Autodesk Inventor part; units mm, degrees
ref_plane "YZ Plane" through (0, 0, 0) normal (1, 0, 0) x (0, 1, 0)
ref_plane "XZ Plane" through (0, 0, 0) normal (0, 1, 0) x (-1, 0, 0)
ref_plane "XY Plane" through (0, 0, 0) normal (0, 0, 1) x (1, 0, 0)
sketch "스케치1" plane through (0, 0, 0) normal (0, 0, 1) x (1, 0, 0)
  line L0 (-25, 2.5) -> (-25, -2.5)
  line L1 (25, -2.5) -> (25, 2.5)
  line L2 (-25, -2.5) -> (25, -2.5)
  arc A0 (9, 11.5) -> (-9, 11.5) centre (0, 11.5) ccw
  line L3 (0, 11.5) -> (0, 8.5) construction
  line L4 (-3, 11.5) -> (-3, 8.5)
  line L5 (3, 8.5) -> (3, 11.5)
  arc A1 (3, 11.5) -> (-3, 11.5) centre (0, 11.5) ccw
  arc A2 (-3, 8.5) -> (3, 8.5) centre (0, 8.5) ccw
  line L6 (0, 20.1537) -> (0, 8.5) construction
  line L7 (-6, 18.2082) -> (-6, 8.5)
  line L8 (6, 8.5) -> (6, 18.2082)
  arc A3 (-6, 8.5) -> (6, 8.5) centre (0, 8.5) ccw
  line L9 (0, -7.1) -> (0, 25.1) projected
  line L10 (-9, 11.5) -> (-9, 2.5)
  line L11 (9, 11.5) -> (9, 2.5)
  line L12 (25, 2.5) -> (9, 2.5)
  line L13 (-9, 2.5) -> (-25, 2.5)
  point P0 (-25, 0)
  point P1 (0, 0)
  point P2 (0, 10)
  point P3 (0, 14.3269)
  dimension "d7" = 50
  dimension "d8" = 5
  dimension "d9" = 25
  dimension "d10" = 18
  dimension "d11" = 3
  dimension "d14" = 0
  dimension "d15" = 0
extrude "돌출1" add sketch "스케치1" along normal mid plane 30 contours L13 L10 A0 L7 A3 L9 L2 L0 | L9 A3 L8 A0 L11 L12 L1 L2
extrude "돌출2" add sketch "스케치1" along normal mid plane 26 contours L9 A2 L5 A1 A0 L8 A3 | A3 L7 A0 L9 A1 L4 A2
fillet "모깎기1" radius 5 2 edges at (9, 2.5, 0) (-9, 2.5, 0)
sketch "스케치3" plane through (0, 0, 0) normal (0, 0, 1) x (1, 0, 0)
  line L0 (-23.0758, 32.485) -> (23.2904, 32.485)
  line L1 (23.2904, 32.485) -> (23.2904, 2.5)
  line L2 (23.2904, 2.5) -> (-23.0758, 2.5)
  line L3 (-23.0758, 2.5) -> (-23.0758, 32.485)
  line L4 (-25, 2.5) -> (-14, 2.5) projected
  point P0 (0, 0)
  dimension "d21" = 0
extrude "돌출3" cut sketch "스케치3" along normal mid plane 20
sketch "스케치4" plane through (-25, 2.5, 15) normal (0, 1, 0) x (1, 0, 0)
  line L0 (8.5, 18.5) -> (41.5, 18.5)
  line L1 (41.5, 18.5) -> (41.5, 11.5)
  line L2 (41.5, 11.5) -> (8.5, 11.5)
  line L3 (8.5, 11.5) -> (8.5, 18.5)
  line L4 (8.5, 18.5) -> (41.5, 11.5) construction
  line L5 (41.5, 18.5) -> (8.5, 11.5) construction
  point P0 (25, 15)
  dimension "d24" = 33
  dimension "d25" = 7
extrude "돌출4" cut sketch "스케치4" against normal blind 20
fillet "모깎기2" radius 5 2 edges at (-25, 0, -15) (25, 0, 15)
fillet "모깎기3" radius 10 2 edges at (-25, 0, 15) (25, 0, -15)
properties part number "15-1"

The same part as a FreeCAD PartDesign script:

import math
import FreeCAD as App
import Part
import Sketcher
Q = App.Units.Quantity


def edges_at(feature, points):
    """Names of the edges that pass closest to the given points."""
    edges = feature.Shape.Edges
    near = lambda p: min(range(len(edges)), key=lambda i: edges[i].distToShape(Part.Vertex(*p))[0])
    return sorted({f"Edge{near(p) + 1}" for p in points})

doc = App.newDocument("Part")
body = doc.addObject("PartDesign::Body", "Body")

# Sketch on XY plane
sketch1 = doc.addObject("Sketcher::SketchObject", "Sketch")
body.addObject(sketch1)
sketch1.AttachmentSupport = (doc.XY_Plane, [""])
sketch1.MapMode = "FlatFace"
sketch1.addGeometry([
    Part.LineSegment(App.Vector(-9, 2.5, 0), App.Vector(-25, 2.5, 0)),  # 0
    Part.LineSegment(App.Vector(-25, 2.5, 0), App.Vector(-25, -2.5, 0)),  # 1
    Part.LineSegment(App.Vector(-25, -2.5, 0), App.Vector(25, -2.5, 0)),  # 2
    Part.LineSegment(App.Vector(25, -2.5, 0), App.Vector(25, 2.5, 0)),  # 3
    Part.LineSegment(App.Vector(25, 2.5, 0), App.Vector(9, 2.5, 0)),  # 4
    Part.LineSegment(App.Vector(9, 2.5, 0), App.Vector(9, 11.5, 0)),  # 5
    Part.ArcOfCircle(Part.Circle(App.Vector(0, 11.5, 0), App.Vector(0, 0, 1), 9), math.radians(0), math.radians(48.189668)),  # 6
    Part.LineSegment(App.Vector(6, 18.2082, 0), App.Vector(6, 8.5, 0)),  # 7
    Part.ArcOfCircle(Part.Circle(App.Vector(0, 8.5, 0), App.Vector(0, 0, 1), 6), math.radians(180), math.radians(360)),  # 8
    Part.LineSegment(App.Vector(-6, 8.5, 0), App.Vector(-6, 18.2082, 0)),  # 9
    Part.ArcOfCircle(Part.Circle(App.Vector(0, 11.5, 0), App.Vector(0, 0, 1), 9), math.radians(131.810332), math.radians(180)),  # 10
    Part.LineSegment(App.Vector(-9, 11.5, 0), App.Vector(-9, 2.5, 0)),  # 11
], False)
sketch1.addConstraint([
    Sketcher.Constraint("Coincident", 0, 2, 1, 1),
    Sketcher.Constraint("Coincident", 1, 2, 2, 1),
    Sketcher.Constraint("Coincident", 2, 2, 3, 1),
    Sketcher.Constraint("Coincident", 3, 2, 4, 1),
    Sketcher.Constraint("Coincident", 4, 2, 5, 1),
    Sketcher.Constraint("Tangent", 5, 2, 6, 1),
    Sketcher.Constraint("Coincident", 6, 2, 7, 1),
    Sketcher.Constraint("Tangent", 7, 2, 8, 2),
    Sketcher.Constraint("Tangent", 8, 1, 9, 1),
    Sketcher.Constraint("Coincident", 9, 2, 10, 1),
    Sketcher.Constraint("Tangent", 10, 2, 11, 1),
    Sketcher.Constraint("Coincident", 11, 2, 0, 1),
    Sketcher.Constraint("Horizontal", 0),
    Sketcher.Constraint("Vertical", 1),
    Sketcher.Constraint("Horizontal", 2),
    Sketcher.Constraint("Vertical", 3),
    Sketcher.Constraint("Horizontal", 4),
    Sketcher.Constraint("Vertical", 5),
    Sketcher.Constraint("Vertical", 7),
    Sketcher.Constraint("Vertical", 9),
    Sketcher.Constraint("Vertical", 11),
    Sketcher.Constraint("Coincident", 10, 3, 6, 3),
    Sketcher.Constraint("Equal", 6, 10),
    Sketcher.Constraint("Symmetric", 0, 2, 2, 2, -1, 1),
    Sketcher.Constraint("Symmetric", 6, 2, 9, 2, -2),
    Sketcher.Constraint("Horizontal", 0, 2, 3, 2),
    Sketcher.Constraint("Radius", 6, Q("9 mm")),
    Sketcher.Constraint("DistanceX", 2, 1, 2, 2, Q("50 mm")),
    Sketcher.Constraint("DistanceY", 1, 2, 1, 1, Q("5 mm")),
    Sketcher.Constraint("Radius", 8, Q("6 mm")),
    Sketcher.Constraint("DistanceY", 8, 3, 6, 3, Q("3 mm")),
    Sketcher.Constraint("DistanceY", 5, 1, 5, 2, Q("9 mm")),
])
pad1 = doc.addObject("PartDesign::Pad", "Pad")
body.addObject(pad1)
pad1.Profile = sketch1
pad1.Length = 30
pad1.Midplane = True

# Sketch on XY plane
sketch2 = doc.addObject("Sketcher::SketchObject", "Sketch001")
body.addObject(sketch2)
sketch2.AttachmentSupport = (doc.XY_Plane, [""])
sketch2.MapMode = "FlatFace"
sketch2.addGeometry([
    Part.ArcOfCircle(Part.Circle(App.Vector(0, 11.5, 0), App.Vector(0, 0, 1), 9), math.radians(48.189668), math.radians(131.810332)),  # 0
    Part.LineSegment(App.Vector(-6, 18.2082, 0), App.Vector(-6, 8.5, 0)),  # 1
    Part.ArcOfCircle(Part.Circle(App.Vector(0, 8.5, 0), App.Vector(0, 0, 1), 6), math.radians(180), math.radians(360)),  # 2
    Part.LineSegment(App.Vector(6, 8.5, 0), App.Vector(6, 18.2082, 0)),  # 3
    Part.ArcOfCircle(Part.Circle(App.Vector(0, 8.5, 0), App.Vector(0, 0, 1), 3), math.radians(180), math.radians(360)),  # 4
    Part.LineSegment(App.Vector(-3, 8.5, 0), App.Vector(-3, 11.5, 0)),  # 5
    Part.ArcOfCircle(Part.Circle(App.Vector(0, 11.5, 0), App.Vector(0, 0, 1), 3), math.radians(0), math.radians(180)),  # 6
    Part.LineSegment(App.Vector(3, 11.5, 0), App.Vector(3, 8.5, 0)),  # 7
], False)
sketch2.addConstraint([
    Sketcher.Constraint("Coincident", 0, 2, 1, 1),
    Sketcher.Constraint("Tangent", 1, 2, 2, 1),
    Sketcher.Constraint("Tangent", 2, 2, 3, 1),
    Sketcher.Constraint("Coincident", 3, 2, 0, 1),
    Sketcher.Constraint("Tangent", 4, 1, 5, 1),
    Sketcher.Constraint("Tangent", 5, 2, 6, 2),
    Sketcher.Constraint("Tangent", 6, 1, 7, 1),
    Sketcher.Constraint("Tangent", 7, 2, 4, 2),
    Sketcher.Constraint("Vertical", 1),
    Sketcher.Constraint("Vertical", 3),
    Sketcher.Constraint("Vertical", 5),
    Sketcher.Constraint("Vertical", 7),
    Sketcher.Constraint("Coincident", 4, 3, 2, 3),
    Sketcher.Constraint("Coincident", 6, 3, 0, 3),
    Sketcher.Constraint("PointOnObject", 0, 3, -2),
    Sketcher.Constraint("Radius", 0, Q("9 mm")),
    Sketcher.Constraint("Radius", 4, Q("3 mm")),
    Sketcher.Constraint("DistanceY", 5, 1, 5, 2, Q("3 mm")),
    Sketcher.Constraint("Radius", 2, Q("6 mm")),
    Sketcher.Constraint("DistanceY", -1, 1, 0, 3, Q("11.5 mm")),
])
pad2 = doc.addObject("PartDesign::Pad", "Pad001")
body.addObject(pad2)
pad2.Profile = sketch2
pad2.Length = 26
pad2.Midplane = True
doc.recompute()

fillet = doc.addObject("PartDesign::Fillet", "Fillet")
body.addObject(fillet)
fillet.Base = (pad2, edges_at(pad2, [(9, 2.5, 0), (-9, 2.5, 0)]))
fillet.Radius = 5

# Sketch on XY plane
sketch3 = doc.addObject("Sketcher::SketchObject", "Sketch002")
body.addObject(sketch3)
sketch3.AttachmentSupport = (doc.XY_Plane, [""])
sketch3.MapMode = "FlatFace"
sketch3.addGeometry([
    Part.LineSegment(App.Vector(23.2904, 32.485, 0), App.Vector(-23.0758, 32.485, 0)),
    Part.LineSegment(App.Vector(-23.0758, 32.485, 0), App.Vector(-23.0758, 2.5, 0)),
    Part.LineSegment(App.Vector(-23.0758, 2.5, 0), App.Vector(23.2904, 2.5, 0)),
    Part.LineSegment(App.Vector(23.2904, 2.5, 0), App.Vector(23.2904, 32.485, 0)),
], False)
sketch3.addConstraint([
    Sketcher.Constraint("Coincident", 0, 2, 1, 1),
    Sketcher.Constraint("Coincident", 1, 2, 2, 1),
    Sketcher.Constraint("Coincident", 2, 2, 3, 1),
    Sketcher.Constraint("Coincident", 3, 2, 0, 1),
    Sketcher.Constraint("Horizontal", 0),
    Sketcher.Constraint("Vertical", 1),
    Sketcher.Constraint("Horizontal", 2),
    Sketcher.Constraint("Vertical", 3),
    Sketcher.Constraint("DistanceY", -1, 1, 1, 2, Q("2.5 mm")),
    Sketcher.Constraint("DistanceY", 1, 2, 1, 1, Q("29.985 mm")),
    Sketcher.Constraint("DistanceX", 0, 2, 0, 1, Q("46.3662 mm")),
    Sketcher.Constraint("DistanceX", 0, 2, -1, 1, Q("23.0758 mm")),
])
pocket1 = doc.addObject("PartDesign::Pocket", "Pocket")
body.addObject(pocket1)
pocket1.Profile = sketch3
pocket1.Length = 20
pocket1.Midplane = True

# Sketch on XZ plane
sketch4 = doc.addObject("Sketcher::SketchObject", "Sketch003")
body.addObject(sketch4)
sketch4.AttachmentSupport = (doc.XZ_Plane, [""])
sketch4.MapMode = "FlatFace"
sketch4.AttachmentOffset = App.Placement(App.Vector(0, 0, -2.5), App.Rotation())
sketch4.addGeometry([
    Part.LineSegment(App.Vector(16.5, -3.5, 0), App.Vector(-16.5, -3.5, 0)),
    Part.LineSegment(App.Vector(-16.5, -3.5, 0), App.Vector(-16.5, 3.5, 0)),
    Part.LineSegment(App.Vector(-16.5, 3.5, 0), App.Vector(16.5, 3.5, 0)),
    Part.LineSegment(App.Vector(16.5, 3.5, 0), App.Vector(16.5, -3.5, 0)),
], False)
sketch4.addConstraint([
    Sketcher.Constraint("Coincident", 0, 2, 1, 1),
    Sketcher.Constraint("Coincident", 1, 2, 2, 1),
    Sketcher.Constraint("Coincident", 2, 2, 3, 1),
    Sketcher.Constraint("Coincident", 3, 2, 0, 1),
    Sketcher.Constraint("Horizontal", 0),
    Sketcher.Constraint("Vertical", 1),
    Sketcher.Constraint("Horizontal", 2),
    Sketcher.Constraint("Vertical", 3),
    Sketcher.Constraint("Symmetric", 0, 2, 2, 2, -1, 1),
    Sketcher.Constraint("DistanceX", 0, 2, 0, 1, Q("33 mm")),
    Sketcher.Constraint("DistanceY", 1, 1, 1, 2, Q("7 mm")),
])
pocket2 = doc.addObject("PartDesign::Pocket", "Pocket001")
body.addObject(pocket2)
pocket2.Profile = sketch4
pocket2.Length = 20
pocket2.Reversed = True
doc.recompute()

fillet2 = doc.addObject("PartDesign::Fillet", "Fillet001")
body.addObject(fillet2)
fillet2.Base = (pocket2, edges_at(pocket2, [(-25, 0, -15), (25, 0, 15)]))
fillet2.Radius = 5
doc.recompute()

fillet3 = doc.addObject("PartDesign::Fillet", "Fillet002")
body.addObject(fillet3)
fillet3.Base = (fillet2, edges_at(fillet2, [(-25, 0, 15), (25, 0, -15)]))
fillet3.Radius = 10

doc.recompute()
